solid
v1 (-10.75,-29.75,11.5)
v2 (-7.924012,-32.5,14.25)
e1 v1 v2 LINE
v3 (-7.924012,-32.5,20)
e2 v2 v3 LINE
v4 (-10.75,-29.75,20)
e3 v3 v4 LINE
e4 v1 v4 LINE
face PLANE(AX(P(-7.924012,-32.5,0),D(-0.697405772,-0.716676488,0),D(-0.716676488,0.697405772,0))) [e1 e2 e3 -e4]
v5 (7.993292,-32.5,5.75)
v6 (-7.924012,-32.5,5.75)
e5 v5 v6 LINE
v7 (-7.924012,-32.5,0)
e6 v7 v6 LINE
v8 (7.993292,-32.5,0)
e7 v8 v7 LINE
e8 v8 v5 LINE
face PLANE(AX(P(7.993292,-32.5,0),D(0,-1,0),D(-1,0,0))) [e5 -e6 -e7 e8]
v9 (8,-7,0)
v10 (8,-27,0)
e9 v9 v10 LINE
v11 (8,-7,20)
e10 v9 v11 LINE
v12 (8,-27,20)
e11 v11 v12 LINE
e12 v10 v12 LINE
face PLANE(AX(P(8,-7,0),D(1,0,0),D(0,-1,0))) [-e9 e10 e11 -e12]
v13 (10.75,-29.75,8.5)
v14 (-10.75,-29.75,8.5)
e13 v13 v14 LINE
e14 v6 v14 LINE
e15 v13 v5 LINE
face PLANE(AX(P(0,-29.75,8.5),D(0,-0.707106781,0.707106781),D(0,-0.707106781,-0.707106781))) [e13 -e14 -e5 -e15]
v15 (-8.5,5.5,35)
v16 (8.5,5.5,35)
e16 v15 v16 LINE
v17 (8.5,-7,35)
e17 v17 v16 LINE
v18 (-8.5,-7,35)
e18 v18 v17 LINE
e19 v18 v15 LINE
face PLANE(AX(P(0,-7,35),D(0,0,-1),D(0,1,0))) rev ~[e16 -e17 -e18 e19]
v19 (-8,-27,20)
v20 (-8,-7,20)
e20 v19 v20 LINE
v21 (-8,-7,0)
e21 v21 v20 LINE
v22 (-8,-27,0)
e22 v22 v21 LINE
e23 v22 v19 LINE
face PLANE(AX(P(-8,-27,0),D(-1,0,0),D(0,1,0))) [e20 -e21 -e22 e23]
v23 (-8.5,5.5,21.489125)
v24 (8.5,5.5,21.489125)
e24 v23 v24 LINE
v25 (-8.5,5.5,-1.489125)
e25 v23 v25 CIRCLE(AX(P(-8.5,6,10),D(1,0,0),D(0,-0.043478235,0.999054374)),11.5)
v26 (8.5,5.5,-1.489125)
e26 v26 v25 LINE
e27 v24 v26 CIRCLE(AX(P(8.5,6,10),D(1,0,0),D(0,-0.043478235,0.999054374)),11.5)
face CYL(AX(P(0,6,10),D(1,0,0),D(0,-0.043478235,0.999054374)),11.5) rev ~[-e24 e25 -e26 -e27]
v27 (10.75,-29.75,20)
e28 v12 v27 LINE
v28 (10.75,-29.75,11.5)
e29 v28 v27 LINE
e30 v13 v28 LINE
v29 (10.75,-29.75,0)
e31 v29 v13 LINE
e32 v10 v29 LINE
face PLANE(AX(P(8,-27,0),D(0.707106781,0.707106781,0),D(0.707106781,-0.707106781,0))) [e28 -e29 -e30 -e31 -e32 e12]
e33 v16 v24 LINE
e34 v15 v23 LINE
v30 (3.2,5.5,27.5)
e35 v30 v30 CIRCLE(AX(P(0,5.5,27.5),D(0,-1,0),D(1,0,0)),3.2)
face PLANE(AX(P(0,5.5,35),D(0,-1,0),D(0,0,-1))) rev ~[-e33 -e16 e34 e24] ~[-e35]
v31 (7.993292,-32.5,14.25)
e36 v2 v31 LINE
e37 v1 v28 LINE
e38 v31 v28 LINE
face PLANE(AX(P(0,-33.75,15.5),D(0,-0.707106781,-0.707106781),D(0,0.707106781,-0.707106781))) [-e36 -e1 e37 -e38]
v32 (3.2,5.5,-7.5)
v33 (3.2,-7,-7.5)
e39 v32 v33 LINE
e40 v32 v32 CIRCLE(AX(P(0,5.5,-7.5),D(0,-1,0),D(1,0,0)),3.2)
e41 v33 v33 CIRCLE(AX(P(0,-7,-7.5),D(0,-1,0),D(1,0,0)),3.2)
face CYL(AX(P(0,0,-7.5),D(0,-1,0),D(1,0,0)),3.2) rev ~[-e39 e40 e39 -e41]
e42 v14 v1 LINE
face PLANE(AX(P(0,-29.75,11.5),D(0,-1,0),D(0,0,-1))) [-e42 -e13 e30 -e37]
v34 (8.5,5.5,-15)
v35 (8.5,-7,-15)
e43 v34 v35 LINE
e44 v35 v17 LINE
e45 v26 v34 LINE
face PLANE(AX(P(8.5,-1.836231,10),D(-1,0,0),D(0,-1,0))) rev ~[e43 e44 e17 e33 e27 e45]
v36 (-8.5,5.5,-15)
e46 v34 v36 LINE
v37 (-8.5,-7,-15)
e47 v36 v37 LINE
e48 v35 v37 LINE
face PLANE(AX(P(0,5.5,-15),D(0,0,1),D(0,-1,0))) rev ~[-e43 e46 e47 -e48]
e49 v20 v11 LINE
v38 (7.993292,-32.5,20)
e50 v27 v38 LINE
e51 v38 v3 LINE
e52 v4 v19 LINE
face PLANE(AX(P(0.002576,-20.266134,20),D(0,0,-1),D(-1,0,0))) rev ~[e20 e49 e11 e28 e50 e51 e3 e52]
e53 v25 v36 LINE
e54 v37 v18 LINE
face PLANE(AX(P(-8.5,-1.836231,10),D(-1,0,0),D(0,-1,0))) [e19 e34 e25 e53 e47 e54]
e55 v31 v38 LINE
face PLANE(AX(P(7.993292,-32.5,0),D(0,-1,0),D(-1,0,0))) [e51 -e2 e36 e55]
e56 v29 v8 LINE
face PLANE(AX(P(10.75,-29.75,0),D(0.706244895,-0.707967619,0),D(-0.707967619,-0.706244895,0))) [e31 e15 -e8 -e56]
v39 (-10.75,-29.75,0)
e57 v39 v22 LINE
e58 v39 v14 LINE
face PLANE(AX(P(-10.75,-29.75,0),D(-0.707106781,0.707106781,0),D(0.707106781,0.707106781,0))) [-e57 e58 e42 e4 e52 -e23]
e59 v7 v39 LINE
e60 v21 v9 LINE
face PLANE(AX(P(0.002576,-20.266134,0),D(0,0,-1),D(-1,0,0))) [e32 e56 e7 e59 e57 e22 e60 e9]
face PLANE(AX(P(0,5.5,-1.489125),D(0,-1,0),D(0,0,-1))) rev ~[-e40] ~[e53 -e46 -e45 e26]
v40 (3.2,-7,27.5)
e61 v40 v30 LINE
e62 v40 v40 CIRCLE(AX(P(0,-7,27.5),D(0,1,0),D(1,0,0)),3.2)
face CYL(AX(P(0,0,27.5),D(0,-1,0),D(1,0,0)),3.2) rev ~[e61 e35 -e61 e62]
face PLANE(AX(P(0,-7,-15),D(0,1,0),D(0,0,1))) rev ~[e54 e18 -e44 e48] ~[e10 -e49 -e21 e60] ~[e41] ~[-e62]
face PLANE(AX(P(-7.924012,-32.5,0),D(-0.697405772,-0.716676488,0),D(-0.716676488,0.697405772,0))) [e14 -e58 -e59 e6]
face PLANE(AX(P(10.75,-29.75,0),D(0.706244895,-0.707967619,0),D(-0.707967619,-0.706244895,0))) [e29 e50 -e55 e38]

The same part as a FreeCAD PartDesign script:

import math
import FreeCAD as App
import Part
import Sketcher

V = App.Vector
Q = App.Units.Quantity

doc = App.newDocument("Part")
body = doc.addObject("PartDesign::Body", "Body")

# Sketch on XY plane
sketch1 = body.newObject("Sketcher::SketchObject", "Sketch")
sketch1.AttachmentSupport = (doc.getObject("XY_Plane"), [""])
sketch1.MapMode = "FlatFace"
sketch1.addGeometry(Part.LineSegment(V(8, -27, 0), V(8, -7, 0)), False)
sketch1.addGeometry(Part.LineSegment(V(8, -7, 0), V(-8, -7, 0)), False)
sketch1.addGeometry(Part.LineSegment(V(-8, -7, 0), V(-8, -27, 0)), False)
sketch1.addGeometry(Part.LineSegment(V(-8, -27, 0), V(-10.75, -29.75, 0)), False)
sketch1.addGeometry(Part.LineSegment(V(-10.75, -29.75, 0), V(-7.924012, -32.5, 0)), False)
sketch1.addGeometry(Part.LineSegment(V(-7.924012, -32.5, 0), V(7.993292, -32.5, 0)), False)
sketch1.addGeometry(Part.LineSegment(V(7.993292, -32.5, 0), V(10.75, -29.75, 0)), False)
sketch1.addGeometry(Part.LineSegment(V(10.75, -29.75, 0), V(8, -27, 0)), False)
sketch1.addConstraint(Sketcher.Constraint("Coincident", 0, 2, 1, 1))
sketch1.addConstraint(Sketcher.Constraint("Coincident", 1, 2, 2, 1))
sketch1.addConstraint(Sketcher.Constraint("Coincident", 2, 2, 3, 1))
sketch1.addConstraint(Sketcher.Constraint("Coincident", 3, 2, 4, 1))
sketch1.addConstraint(Sketcher.Constraint("Coincident", 4, 2, 5, 1))
sketch1.addConstraint(Sketcher.Constraint("Coincident", 5, 2, 6, 1))
sketch1.addConstraint(Sketcher.Constraint("Coincident", 6, 2, 7, 1))
sketch1.addConstraint(Sketcher.Constraint("Coincident", 7, 2, 0, 1))
sketch1.addConstraint(Sketcher.Constraint("Vertical", 0))
sketch1.addConstraint(Sketcher.Constraint("Horizontal", 1))
sketch1.addConstraint(Sketcher.Constraint("Vertical", 2))
sketch1.addConstraint(Sketcher.Constraint("Horizontal", 5))
sketch1.addConstraint(Sketcher.Constraint("Symmetric", 3, 2, 6, 2, -2))
sketch1.addConstraint(Sketcher.Constraint("Symmetric", 2, 2, 7, 2, -2))
sketch1.addConstraint(Sketcher.Constraint("Perpendicular", 3, 7))
sketch1.addConstraint(Sketcher.Constraint("DistanceX", 1, 2, 1, 1, Q("16 mm")))
sketch1.addConstraint(Sketcher.Constraint("DistanceY", 0, 1, 0, 2, Q("20 mm")))
sketch1.addConstraint(Sketcher.Constraint("DistanceY", 0, 2, -1, 1, Q("7 mm")))
sketch1.addConstraint(Sketcher.Constraint("DistanceY", 4, 2, -1, 1, Q("32.5 mm")))
sketch1.addConstraint(Sketcher.Constraint("DistanceX", 3, 2, 6, 2, Q("21.5 mm")))
sketch1.addConstraint(Sketcher.Constraint("DistanceX", 5, 1, 5, 2, Q("15.917304 mm")))
sketch1.addConstraint(Sketcher.Constraint("Distance", 4, Q("3.943185 mm")))
pad1 = body.newObject("PartDesign::Pad", "Pad")
pad1.Profile = sketch1
pad1.Length = 20

# Sketch on YZ plane
sketch2 = body.newObject("Sketcher::SketchObject", "Sketch001")
sketch2.AttachmentSupport = (doc.getObject("YZ_Plane"), [""])
sketch2.MapMode = "FlatFace"
sketch2.addGeometry(Part.LineSegment(V(-29.75, 8.5, 0), V(-29.75, 11.5, 0)), False)
sketch2.addGeometry(Part.LineSegment(V(-29.75, 11.5, 0), V(-33.75, 15.5, 0)), False)
sketch2.addGeometry(Part.LineSegment(V(-33.75, 15.5, 0), V(-33.75, 4.5, 0)), False)
sketch2.addGeometry(Part.LineSegment(V(-33.75, 4.5, 0), V(-29.75, 8.5, 0)), False)
sketch2.addConstraint(Sketcher.Constraint("Coincident", 0, 2, 1, 1))
sketch2.addConstraint(Sketcher.Constraint("Coincident", 1, 2, 2, 1))
sketch2.addConstraint(Sketcher.Constraint("Coincident", 2, 2, 3, 1))
sketch2.addConstraint(Sketcher.Constraint("Coincident", 3, 2, 0, 1))
sketch2.addConstraint(Sketcher.Constraint("Vertical", 0))
sketch2.addConstraint(Sketcher.Constraint("Vertical", 2))
sketch2.addConstraint(Sketcher.Constraint("Perpendicular", 1, 3))
sketch2.addConstraint(Sketcher.Constraint("Equal", 1, 3))
sketch2.addConstraint(Sketcher.Constraint("DistanceY", 0, 1, 0, 2, Q("3 mm")))
sketch2.addConstraint(Sketcher.Constraint("DistanceY", 2, 2, 2, 1, Q("11 mm")))
sketch2.addConstraint(Sketcher.Constraint("DistanceY", -1, 1, 0, 2, Q("11.5 mm")))
sketch2.addConstraint(Sketcher.Constraint("DistanceX", 0, 2, -1, 1, Q("29.75 mm")))
pocket1 = body.newObject("PartDesign::Pocket", "Pocket")
pocket1.Profile = sketch2
pocket1.Length = 30
pocket1.Midplane = True

# Sketch on YZ plane
sketch3 = body.newObject("Sketcher::SketchObject", "Sketch002")
sketch3.AttachmentSupport = (doc.getObject("YZ_Plane"), [""])
sketch3.MapMode = "FlatFace"
sketch3.addGeometry(Part.ArcOfCircle(Part.Circle(V(6, 10, 0), V(0, 0, 1), 11.5), math.radians(92.491905), math.radians(267.508095)), False)
sketch3.addGeometry(Part.LineSegment(V(5.5, 21.489125, 0), V(5.5, 35, 0)), False)
sketch3.addGeometry(Part.LineSegment(V(5.5, 35, 0), V(-7, 35, 0)), False)
sketch3.addGeometry(Part.LineSegment(V(-7, 35, 0), V(-7, -15, 0)), False)
sketch3.addGeometry(Part.LineSegment(V(-7, -15, 0), V(5.5, -15, 0)), False)
sketch3.addGeometry(Part.LineSegment(V(5.5, -15, 0), V(5.5, -1.489125, 0)), False)
sketch3.addConstraint(Sketcher.Constraint("Coincident", 0, 1, 1, 1))
sketch3.addConstraint(Sketcher.Constraint("Coincident", 1, 2, 2, 1))
sketch3.addConstraint(Sketcher.Constraint("Coincident", 2, 2, 3, 1))
sketch3.addConstraint(Sketcher.Constraint("Coincident", 3, 2, 4, 1))
sketch3.addConstraint(Sketcher.Constraint("Coincident", 4, 2, 5, 1))
sketch3.addConstraint(Sketcher.Constraint("Coincident", 5, 2, 0, 2))
sketch3.addConstraint(Sketcher.Constraint("Vertical", 1))
sketch3.addConstraint(Sketcher.Constraint("Horizontal", 2))
sketch3.addConstraint(Sketcher.Constraint("Vertical", 3))
sketch3.addConstraint(Sketcher.Constraint("Horizontal", 4))
sketch3.addConstraint(Sketcher.Constraint("Vertical", 5))
sketch3.addConstraint(Sketcher.Constraint("Vertical", 1, 2, 4, 2))
sketch3.addConstraint(Sketcher.Constraint("Equal", 1, 5))
sketch3.addConstraint(Sketcher.Constraint("Radius", 0, Q("11.5 mm")))
sketch3.addConstraint(Sketcher.Constraint("DistanceY", 3, 2, 3, 1, Q("50 mm")))
sketch3.addConstraint(Sketcher.Constraint("DistanceX", 2, 2, 2, 1, Q("12.5 mm")))
sketch3.addConstraint(Sketcher.Constraint("DistanceX", -1, 1, 0, 3, Q("6 mm")))
sketch3.addConstraint(Sketcher.Constraint("DistanceY", -1, 1, 0, 3, Q("10 mm")))
sketch3.addConstraint(Sketcher.Constraint("DistanceX", 2, 2, -1, 1, Q("7 mm")))
pad2 = body.newObject("PartDesign::Pad", "Pad001")
pad2.Profile = sketch3
pad2.Length = 17
pad2.Midplane = True

# Sketch on XZ plane
sketch4 = body.newObject("Sketcher::SketchObject", "Sketch003")
sketch4.AttachmentSupport = (doc.getObject("XZ_Plane"), [""])
sketch4.MapMode = "FlatFace"
sketch4.addGeometry(Part.Circle(V(0, 27.5, 0), V(0, 0, 1), 3.2), False)
sketch4.addGeometry(Part.Circle(V(0, -7.5, 0), V(0, 0, 1), 3.2), False)
sketch4.addConstraint(Sketcher.Constraint("Equal", 0, 1))
sketch4.addConstraint(Sketcher.Constraint("PointOnObject", 0, 3, -2))
sketch4.addConstraint(Sketcher.Constraint("PointOnObject", 1, 3, -2))
sketch4.addConstraint(Sketcher.Constraint("Diameter", 0, Q("6.4 mm")))
sketch4.addConstraint(Sketcher.Constraint("DistanceY", 1, 3, 0, 3, Q("35 mm")))
sketch4.addConstraint(Sketcher.Constraint("DistanceY", -1, 1, 0, 3, Q("27.5 mm")))
pocket2 = body.newObject("PartDesign::Pocket", "Pocket001")
pocket2.Profile = sketch4
pocket2.Length = 25
pocket2.Midplane = True

doc.recompute()
